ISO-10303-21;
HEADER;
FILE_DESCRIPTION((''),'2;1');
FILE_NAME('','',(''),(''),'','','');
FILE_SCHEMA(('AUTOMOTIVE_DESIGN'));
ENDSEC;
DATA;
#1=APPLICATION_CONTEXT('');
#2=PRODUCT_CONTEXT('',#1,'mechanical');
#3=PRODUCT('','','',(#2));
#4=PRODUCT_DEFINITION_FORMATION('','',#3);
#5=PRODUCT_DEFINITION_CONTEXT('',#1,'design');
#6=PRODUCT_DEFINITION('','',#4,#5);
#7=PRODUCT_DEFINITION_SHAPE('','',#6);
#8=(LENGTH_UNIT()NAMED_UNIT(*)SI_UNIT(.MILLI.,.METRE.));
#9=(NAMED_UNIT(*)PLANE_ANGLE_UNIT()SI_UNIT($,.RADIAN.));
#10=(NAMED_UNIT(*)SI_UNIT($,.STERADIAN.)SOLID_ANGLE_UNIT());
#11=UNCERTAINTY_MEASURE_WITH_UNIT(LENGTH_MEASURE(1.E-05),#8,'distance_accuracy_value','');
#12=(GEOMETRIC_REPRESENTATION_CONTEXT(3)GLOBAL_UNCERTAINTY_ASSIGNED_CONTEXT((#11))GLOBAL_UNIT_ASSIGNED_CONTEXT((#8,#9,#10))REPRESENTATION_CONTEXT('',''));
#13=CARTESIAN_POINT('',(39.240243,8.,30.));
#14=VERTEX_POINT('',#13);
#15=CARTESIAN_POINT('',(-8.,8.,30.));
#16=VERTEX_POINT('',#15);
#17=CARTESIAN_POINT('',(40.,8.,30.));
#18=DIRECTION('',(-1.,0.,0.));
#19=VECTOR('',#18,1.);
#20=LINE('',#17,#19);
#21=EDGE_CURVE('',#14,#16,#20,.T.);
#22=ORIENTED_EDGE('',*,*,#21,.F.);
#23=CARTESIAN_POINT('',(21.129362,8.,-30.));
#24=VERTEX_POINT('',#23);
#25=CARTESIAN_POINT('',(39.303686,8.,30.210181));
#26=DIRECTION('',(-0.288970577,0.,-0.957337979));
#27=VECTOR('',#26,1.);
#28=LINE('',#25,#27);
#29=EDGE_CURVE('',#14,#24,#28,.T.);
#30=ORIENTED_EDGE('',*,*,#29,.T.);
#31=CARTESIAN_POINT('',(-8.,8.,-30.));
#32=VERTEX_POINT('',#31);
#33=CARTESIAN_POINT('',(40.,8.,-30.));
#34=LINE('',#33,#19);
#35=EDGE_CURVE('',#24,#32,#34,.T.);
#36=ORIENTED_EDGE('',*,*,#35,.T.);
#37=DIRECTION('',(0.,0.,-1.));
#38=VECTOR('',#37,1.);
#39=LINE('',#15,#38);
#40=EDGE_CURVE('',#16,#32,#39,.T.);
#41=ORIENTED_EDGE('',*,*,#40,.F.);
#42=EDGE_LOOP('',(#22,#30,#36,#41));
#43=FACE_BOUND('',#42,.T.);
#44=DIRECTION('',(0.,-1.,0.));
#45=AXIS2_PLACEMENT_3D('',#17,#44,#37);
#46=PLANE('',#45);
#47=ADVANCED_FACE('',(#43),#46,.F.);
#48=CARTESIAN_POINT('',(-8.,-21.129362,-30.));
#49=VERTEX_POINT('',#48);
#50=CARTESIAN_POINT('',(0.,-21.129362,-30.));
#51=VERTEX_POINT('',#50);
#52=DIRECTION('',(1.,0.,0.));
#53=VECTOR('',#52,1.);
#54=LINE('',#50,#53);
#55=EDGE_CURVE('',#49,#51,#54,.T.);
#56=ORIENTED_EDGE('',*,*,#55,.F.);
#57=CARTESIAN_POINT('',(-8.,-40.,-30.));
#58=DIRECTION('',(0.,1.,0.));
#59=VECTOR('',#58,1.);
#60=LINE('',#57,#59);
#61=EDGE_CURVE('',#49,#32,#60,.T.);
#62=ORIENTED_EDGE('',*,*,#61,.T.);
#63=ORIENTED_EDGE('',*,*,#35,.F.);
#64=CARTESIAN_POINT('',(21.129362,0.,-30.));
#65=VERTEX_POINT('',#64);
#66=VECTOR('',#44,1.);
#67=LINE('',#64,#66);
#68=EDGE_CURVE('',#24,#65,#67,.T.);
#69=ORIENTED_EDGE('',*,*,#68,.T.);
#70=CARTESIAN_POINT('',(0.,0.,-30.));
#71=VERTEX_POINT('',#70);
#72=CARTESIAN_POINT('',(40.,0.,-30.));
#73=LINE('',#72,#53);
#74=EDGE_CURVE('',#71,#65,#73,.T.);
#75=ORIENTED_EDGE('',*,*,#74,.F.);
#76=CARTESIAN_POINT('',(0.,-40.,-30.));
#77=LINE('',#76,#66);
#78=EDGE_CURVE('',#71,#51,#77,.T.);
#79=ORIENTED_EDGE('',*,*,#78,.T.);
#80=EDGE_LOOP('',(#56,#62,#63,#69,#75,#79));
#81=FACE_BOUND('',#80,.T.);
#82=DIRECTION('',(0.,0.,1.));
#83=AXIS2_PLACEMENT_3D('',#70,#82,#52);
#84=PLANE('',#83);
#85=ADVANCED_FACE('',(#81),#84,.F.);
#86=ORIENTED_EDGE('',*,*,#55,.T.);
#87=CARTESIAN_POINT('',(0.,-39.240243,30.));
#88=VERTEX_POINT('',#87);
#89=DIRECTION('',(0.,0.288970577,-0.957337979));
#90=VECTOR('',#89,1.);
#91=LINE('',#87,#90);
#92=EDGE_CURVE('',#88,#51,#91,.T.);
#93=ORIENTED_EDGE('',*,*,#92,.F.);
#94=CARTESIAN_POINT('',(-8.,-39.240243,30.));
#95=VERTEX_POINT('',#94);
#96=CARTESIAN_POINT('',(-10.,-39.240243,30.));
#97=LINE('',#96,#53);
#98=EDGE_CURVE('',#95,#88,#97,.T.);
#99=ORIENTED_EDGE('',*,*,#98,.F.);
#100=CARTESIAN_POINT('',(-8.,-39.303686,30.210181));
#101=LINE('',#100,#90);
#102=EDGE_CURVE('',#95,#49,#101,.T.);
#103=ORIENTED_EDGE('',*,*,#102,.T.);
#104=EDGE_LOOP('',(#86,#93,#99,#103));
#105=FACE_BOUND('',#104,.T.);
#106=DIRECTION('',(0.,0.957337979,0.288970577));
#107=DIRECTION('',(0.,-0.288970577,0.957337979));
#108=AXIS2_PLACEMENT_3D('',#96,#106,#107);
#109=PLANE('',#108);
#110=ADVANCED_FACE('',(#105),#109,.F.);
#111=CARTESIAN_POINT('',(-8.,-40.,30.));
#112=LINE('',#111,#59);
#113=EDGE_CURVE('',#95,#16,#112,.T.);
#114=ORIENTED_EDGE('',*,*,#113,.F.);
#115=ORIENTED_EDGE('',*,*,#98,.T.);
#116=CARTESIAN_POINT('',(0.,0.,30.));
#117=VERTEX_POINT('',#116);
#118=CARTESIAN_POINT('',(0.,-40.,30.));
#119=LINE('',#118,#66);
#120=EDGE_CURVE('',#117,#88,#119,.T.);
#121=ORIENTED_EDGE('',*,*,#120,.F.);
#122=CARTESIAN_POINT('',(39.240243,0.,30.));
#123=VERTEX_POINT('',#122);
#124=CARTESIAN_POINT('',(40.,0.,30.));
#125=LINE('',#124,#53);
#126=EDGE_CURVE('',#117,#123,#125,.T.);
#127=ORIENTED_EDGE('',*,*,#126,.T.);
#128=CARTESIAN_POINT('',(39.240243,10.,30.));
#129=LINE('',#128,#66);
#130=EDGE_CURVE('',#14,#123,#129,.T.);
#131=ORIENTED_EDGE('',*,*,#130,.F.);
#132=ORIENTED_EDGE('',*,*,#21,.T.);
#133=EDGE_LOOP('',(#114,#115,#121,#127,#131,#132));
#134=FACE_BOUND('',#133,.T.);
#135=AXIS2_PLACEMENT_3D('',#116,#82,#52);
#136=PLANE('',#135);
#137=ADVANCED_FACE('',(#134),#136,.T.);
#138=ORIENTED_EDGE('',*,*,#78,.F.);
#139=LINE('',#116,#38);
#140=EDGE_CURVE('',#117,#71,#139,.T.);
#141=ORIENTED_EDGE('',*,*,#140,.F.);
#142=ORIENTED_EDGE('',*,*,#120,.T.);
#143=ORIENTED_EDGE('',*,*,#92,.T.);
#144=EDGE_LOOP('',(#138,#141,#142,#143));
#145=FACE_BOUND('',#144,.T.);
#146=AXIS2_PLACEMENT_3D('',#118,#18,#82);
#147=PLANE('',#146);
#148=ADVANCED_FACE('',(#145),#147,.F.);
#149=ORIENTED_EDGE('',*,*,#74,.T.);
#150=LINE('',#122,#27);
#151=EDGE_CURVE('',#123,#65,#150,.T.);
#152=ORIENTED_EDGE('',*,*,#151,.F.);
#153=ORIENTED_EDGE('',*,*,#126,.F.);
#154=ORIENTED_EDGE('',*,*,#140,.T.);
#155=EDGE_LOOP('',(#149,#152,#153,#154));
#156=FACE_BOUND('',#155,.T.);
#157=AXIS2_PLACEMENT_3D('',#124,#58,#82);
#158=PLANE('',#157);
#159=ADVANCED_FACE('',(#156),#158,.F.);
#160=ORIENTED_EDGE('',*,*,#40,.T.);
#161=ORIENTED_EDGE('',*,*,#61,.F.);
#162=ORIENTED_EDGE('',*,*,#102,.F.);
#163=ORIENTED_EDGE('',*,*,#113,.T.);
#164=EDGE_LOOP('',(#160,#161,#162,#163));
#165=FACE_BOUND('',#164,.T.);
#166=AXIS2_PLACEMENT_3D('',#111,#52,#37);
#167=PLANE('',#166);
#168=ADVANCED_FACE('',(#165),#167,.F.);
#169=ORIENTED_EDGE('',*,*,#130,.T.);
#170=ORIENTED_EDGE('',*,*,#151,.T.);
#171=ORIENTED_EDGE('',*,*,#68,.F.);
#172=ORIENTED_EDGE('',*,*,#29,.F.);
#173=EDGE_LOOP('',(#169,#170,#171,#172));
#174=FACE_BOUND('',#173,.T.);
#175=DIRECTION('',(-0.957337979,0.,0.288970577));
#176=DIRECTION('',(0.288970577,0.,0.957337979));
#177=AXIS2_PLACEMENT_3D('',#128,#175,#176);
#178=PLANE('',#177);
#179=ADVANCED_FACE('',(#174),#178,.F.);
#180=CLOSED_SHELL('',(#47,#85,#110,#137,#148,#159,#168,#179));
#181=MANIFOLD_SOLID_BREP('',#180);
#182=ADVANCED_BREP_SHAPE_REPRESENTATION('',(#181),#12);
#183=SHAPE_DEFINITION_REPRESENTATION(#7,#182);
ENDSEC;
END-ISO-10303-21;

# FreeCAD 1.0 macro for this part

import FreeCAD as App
import Part
import Sketcher
from FreeCAD import Vector


def add_polygon(sketch, points):
    """Adds a closed chain of lines whose ends are joined by coincident constraints."""
    first, n = sketch.GeometryCount, len(points)
    for a, b in zip(points, points[1:] + points[:1]):
        sketch.addGeometry(Part.LineSegment(App.Vector(*a, 0), App.Vector(*b, 0)), False)
    for i in range(n):
        sketch.addConstraint(Sketcher.Constraint("Coincident", first + i, 2, first + (i + 1) % n, 1))

doc = App.newDocument("Part")
params = doc.addObject("Spreadsheet::Sheet", "Params")
for row, (alias, value) in enumerate([
    ("sketch1_width", "40 mm"),
    ("sketch1_width2", "48 mm"),
    ("pad1_length", "60 mm"),
    ("sketch2_height", "60 mm"),
    ("pocket1_length", "10 mm"),
    ("sketch3_width", "8 mm"),
    ("sketch3_height", "40 mm"),
    ("sketch3_height2", "48 mm"),
], start=1):
    params.set(f"A{row}", alias)
    params.set(f"B{row}", "=" + value)
    params.setAlias(f"B{row}", alias)

body = doc.addObject("PartDesign::Body", "Body")

# Sketch on XY plane
sketch1 = body.newObject("Sketcher::SketchObject", "Sketch")
sketch1.AttachmentSupport = (doc.getObject("XY_Plane"), [""])
sketch1.MapMode = "FlatFace"
add_polygon(sketch1, [(0, 0), (40, 0), (40, 8), (-8, 8), (-8, -40), (0, -40)])  # lines 0-5
sketch1.addConstraint([
    Sketcher.Constraint("Horizontal", 0),
    Sketcher.Constraint("Vertical", 1),
    Sketcher.Constraint("Horizontal", 2),
    Sketcher.Constraint("Vertical", 3),
    Sketcher.Constraint("Horizontal", 4),
    Sketcher.Constraint("Vertical", 5),
    Sketcher.Constraint("Coincident", 5, 2, -1, 1),
    Sketcher.Constraint("Equal", 4, 1),
    Sketcher.Constraint("Equal", 2, 3),
    Sketcher.Constraint("DistanceX", 0, 1, 0, 2, 40.0),
    Sketcher.Constraint("DistanceX", 2, 2, 2, 1, 48.0),
])
sketch1.setExpression("Constraints[15]", "Params.sketch1_width")
sketch1.setExpression("Constraints[16]", "Params.sketch1_width2")
pad1 = body.newObject("PartDesign::Pad", "Pad")
pad1.Profile = sketch1
pad1.setExpression("Length", "Params.pad1_length")
pad1.Midplane = True

# Sketch on XZ plane
sketch2 = body.newObject("Sketcher::SketchObject", "Sketch001")
sketch2.AttachmentSupport = (doc.getObject("XZ_Plane"), [""])
sketch2.MapMode = "FlatFace"
add_polygon(sketch2, [(39.240243, 30), (21.129362, -30), (40, -30), (40, 30)])  # lines 0-3
sketch2.addConstraint([
    Sketcher.Constraint("Horizontal", 1),
    Sketcher.Constraint("Vertical", 2),
    Sketcher.Constraint("Horizontal", 3),
    Sketcher.Constraint("DistanceY", 2, 1, 2, 2, 60.0),
    Sketcher.Constraint("DistanceY", 0, 2, -1, 1, 30.0),
    Sketcher.Constraint("DistanceX", -1, 1, 1, 2, 40.0),
    Sketcher.Constraint("DistanceX", 1, 1, 1, 2, 18.870638),
    Sketcher.Constraint("Distance", 0, 62.673791),
])
sketch2.setExpression("Constraints[7]", "Params.sketch2_height")
pocket1 = body.newObject("PartDesign::Pocket", "Pocket")
pocket1.Profile = sketch2
pocket1.setExpression("Length", "Params.pocket1_length")

# Sketch on XY plane
sketch3 = body.newObject("Sketcher::SketchObject", "Sketch002")
sketch3.AttachmentSupport = (doc.getObject("XY_Plane"), [""])
sketch3.MapMode = "FlatFace"
sketch3.AttachmentOffset = App.Placement(Vector(0, 0, -30), App.Rotation())
add_polygon(sketch3, [(-8, 8), (0, 0), (0, -40), (-8, -40)])  # lines 0-3
sketch3.addConstraint([
    Sketcher.Constraint("Vertical", 1),
    Sketcher.Constraint("Horizontal", 2),
    Sketcher.Constraint("Vertical", 3),
    Sketcher.Constraint("Coincident", 0, 2, -1, 1),
    Sketcher.Constraint("DistanceX", 2, 2, 2, 1, 8.0),
    Sketcher.Constraint("DistanceY", 1, 2, 1, 1, 40.0),
    Sketcher.Constraint("DistanceY", 3, 1, 3, 2, 48.0),
])
sketch3.setExpression("Constraints[8]", "Params.sketch3_width")
sketch3.setExpression("Constraints[9]", "Params.sketch3_height")
sketch3.setExpression("Constraints[10]", "Params.sketch3_height2")
pocket2 = body.newObject("PartDesign::Pocket", "Pocket001")
pocket2.Profile = sketch3
pocket2.Type = "ThroughAll"
pocket2.Reversed = True
body2 = doc.addObject("PartDesign::Body", "Body001")
doc.recompute()

body2.BaseFeature = body
doc.recompute()

mirroring = doc.addObject("Part::Mirroring", "Mirroring")
mirroring.Source = body
mirroring.Base = Vector(0, 0, 30)
mirroring.Normal = Vector(0.707106781, 0.707106781, 0)
body3 = doc.addObject("PartDesign::Body", "Body002")
body3.BaseFeature = mirroring
boolean = body2.newObject("PartDesign::Boolean", "Boolean")
boolean.Type = "Fuse"
boolean.addObjects([body3])
doc.recompute()
mirroring.Visibility = False

doc.recompute()
